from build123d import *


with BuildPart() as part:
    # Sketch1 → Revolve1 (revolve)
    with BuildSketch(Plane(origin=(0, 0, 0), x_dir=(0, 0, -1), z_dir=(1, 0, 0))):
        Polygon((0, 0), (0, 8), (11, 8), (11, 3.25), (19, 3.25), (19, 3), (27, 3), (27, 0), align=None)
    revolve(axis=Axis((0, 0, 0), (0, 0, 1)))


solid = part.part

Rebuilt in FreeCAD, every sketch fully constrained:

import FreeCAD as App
import Part
import Sketcher
from FreeCAD import Vector


def add_polygon(sketch, points):
    """Adds a closed chain of lines whose ends are joined by coincident constraints."""
    first, n = sketch.GeometryCount, len(points)
    for a, b in zip(points, points[1:] + points[:1]):
        sketch.addGeometry(Part.LineSegment(App.Vector(*a, 0), App.Vector(*b, 0)), False)
    for i in range(n):
        sketch.addConstraint(Sketcher.Constraint("Coincident", first + i, 2, first + (i + 1) % n, 1))

doc = App.newDocument("Part")
body = doc.addObject("PartDesign::Body", "Body")

sketch1 = doc.addObject("Sketcher::SketchObject", "Sketch")
body.addObject(sketch1)
sketch1.AttachmentSupport = (doc.YZ_Plane, [""])
sketch1.MapMode = "FlatFace"
add_polygon(sketch1, [(8, 0), (0, 0), (0, -27), (3, -27), (3, -19), (3.25, -19), (3.25, -11), (8, -11)])
sketch1.addConstraint(Sketcher.Constraint("Horizontal", 0))
sketch1.addConstraint(Sketcher.Constraint("Vertical", 1))
sketch1.addConstraint(Sketcher.Constraint("Horizontal", 2))
sketch1.addConstraint(Sketcher.Constraint("Vertical", 3))
sketch1.addConstraint(Sketcher.Constraint("Horizontal", 4))
sketch1.addConstraint(Sketcher.Constraint("Vertical", 5))
sketch1.addConstraint(Sketcher.Constraint("Horizontal", 6))
sketch1.addConstraint(Sketcher.Constraint("Vertical", 7))
sketch1.addConstraint(Sketcher.Constraint("Coincident", 0, 2, -1, 1))
sketch1.addConstraint(Sketcher.Constraint("Equal", 0, 3))
sketch1.addConstraint(Sketcher.Constraint("Equal", 3, 5))
sketch1.addConstraint(Sketcher.Constraint("DistanceX", 0, 2, 0, 1, 8.0))
sketch1.addConstraint(Sketcher.Constraint("DistanceX", 2, 1, 2, 2, 3.0))
sketch1.addConstraint(Sketcher.Constraint("DistanceY", 1, 2, 1, 1, 27.0))
sketch1.addConstraint(Sketcher.Constraint("DistanceX", 4, 1, 4, 2, 0.25))
revolution = doc.addObject("PartDesign::Revolution", "Revolution")
body.addObject(revolution)
revolution.Profile = sketch1
revolution.ReferenceAxis = (sketch1, ["V_Axis"])
revolution.Angle = 360

doc.recompute()
